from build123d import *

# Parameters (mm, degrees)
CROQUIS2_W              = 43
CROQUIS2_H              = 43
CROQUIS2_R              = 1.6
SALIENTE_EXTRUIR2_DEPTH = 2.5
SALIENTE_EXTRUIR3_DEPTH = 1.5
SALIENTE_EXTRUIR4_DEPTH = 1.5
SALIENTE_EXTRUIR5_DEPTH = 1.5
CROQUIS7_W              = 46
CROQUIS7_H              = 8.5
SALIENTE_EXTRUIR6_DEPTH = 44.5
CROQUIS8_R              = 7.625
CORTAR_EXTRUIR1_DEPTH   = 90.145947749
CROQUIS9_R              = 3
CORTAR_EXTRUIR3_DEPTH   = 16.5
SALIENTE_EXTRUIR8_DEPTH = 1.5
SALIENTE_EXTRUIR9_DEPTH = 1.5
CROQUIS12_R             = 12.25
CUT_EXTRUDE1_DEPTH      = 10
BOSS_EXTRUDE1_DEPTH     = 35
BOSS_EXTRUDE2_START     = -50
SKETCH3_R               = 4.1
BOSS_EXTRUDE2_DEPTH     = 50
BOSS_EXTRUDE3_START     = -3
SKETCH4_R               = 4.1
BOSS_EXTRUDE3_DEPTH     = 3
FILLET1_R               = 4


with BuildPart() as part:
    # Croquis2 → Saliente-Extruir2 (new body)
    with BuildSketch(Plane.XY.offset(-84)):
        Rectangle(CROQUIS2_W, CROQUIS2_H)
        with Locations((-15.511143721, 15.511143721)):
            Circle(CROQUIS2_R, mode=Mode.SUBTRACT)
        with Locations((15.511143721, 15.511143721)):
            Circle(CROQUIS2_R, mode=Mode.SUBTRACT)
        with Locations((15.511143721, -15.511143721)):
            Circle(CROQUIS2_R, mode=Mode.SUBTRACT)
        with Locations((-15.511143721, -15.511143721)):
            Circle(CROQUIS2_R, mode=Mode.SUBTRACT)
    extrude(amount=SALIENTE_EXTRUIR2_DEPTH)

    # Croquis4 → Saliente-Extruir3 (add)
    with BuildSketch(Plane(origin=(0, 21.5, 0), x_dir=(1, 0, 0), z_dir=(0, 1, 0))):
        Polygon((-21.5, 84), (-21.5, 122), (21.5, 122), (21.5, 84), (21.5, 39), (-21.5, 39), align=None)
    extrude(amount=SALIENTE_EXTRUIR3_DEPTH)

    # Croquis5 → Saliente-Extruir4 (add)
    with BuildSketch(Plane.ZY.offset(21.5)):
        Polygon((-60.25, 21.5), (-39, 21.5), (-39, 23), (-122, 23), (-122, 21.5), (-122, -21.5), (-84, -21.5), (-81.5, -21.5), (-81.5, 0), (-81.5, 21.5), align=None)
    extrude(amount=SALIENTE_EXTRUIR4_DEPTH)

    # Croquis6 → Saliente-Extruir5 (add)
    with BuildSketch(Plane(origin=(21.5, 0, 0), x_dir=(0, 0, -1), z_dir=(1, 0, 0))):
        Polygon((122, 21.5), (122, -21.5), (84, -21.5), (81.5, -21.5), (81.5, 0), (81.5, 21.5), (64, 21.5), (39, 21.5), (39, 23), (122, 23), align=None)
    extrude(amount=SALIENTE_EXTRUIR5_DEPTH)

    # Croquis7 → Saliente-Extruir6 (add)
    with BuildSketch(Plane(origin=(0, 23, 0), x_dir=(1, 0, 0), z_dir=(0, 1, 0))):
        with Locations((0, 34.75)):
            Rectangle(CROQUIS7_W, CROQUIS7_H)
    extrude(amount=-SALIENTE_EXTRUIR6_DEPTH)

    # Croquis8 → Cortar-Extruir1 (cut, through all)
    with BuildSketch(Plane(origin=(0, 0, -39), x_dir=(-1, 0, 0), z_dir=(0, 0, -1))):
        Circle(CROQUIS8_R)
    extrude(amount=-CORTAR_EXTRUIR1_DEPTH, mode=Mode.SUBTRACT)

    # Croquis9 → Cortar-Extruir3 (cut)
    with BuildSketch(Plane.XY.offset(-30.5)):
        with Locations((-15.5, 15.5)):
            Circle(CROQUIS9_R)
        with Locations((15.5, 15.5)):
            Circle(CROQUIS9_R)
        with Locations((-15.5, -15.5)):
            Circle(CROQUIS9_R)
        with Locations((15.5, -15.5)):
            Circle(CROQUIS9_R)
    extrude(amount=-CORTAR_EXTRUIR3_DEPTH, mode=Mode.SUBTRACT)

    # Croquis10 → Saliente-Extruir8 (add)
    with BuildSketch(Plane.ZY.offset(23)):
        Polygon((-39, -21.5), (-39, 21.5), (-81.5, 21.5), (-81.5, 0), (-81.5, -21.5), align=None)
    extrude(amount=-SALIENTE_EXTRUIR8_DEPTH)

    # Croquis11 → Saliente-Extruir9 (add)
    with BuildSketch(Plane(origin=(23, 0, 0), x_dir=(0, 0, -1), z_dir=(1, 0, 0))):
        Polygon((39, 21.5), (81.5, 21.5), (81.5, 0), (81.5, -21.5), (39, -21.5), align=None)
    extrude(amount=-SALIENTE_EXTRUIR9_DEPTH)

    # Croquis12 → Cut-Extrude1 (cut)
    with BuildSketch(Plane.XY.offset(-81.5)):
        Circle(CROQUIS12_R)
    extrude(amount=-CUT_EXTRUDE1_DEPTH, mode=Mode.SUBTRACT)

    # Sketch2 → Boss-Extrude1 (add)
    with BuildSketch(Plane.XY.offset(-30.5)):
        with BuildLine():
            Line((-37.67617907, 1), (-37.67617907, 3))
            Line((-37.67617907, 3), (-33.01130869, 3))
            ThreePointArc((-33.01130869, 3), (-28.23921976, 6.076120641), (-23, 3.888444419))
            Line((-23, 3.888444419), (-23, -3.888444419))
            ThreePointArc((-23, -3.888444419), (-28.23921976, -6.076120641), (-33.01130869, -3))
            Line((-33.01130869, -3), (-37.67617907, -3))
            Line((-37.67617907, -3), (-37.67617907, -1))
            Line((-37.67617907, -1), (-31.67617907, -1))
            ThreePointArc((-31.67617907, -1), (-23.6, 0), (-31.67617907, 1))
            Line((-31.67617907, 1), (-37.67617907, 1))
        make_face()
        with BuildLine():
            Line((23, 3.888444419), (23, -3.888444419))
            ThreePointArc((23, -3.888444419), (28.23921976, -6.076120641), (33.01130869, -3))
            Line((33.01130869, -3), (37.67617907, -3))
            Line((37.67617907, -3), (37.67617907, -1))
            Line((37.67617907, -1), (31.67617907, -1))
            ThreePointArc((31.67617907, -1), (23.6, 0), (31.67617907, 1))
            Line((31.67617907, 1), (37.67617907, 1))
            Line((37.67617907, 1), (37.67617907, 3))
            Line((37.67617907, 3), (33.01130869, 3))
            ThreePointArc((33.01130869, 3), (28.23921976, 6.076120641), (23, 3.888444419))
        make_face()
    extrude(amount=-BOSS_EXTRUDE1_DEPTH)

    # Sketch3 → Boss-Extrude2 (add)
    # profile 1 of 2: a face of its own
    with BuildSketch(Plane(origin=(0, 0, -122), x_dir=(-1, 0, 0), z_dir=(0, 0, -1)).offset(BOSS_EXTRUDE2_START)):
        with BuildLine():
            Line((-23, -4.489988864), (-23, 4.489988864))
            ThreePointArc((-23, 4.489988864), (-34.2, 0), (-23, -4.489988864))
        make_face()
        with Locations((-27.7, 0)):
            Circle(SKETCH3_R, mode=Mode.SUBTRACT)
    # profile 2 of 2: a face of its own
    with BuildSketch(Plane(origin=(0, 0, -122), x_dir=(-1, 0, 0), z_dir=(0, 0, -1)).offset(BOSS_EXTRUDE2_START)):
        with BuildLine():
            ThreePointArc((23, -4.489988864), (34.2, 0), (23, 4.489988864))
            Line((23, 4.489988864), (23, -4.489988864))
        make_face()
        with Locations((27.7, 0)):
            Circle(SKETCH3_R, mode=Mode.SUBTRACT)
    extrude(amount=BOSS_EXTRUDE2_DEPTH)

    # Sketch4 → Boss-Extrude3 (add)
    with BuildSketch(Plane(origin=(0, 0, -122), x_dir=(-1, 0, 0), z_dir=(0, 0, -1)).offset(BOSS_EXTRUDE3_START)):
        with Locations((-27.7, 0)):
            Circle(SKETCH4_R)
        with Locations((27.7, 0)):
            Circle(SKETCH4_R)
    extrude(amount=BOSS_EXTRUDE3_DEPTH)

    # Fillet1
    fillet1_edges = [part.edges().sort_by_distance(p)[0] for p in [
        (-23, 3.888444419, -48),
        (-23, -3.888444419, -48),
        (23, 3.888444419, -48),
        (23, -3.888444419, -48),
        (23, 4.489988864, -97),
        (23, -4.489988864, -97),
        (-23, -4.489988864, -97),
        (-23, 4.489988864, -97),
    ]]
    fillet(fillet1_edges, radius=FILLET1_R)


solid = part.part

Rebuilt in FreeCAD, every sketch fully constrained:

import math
import FreeCAD as App
import Part
import Sketcher

V = App.Vector


def edges_at(feature, points):
    """Names of the edges that pass closest to the given points."""
    edges = feature.Shape.Edges
    near = lambda p: min(range(len(edges)), key=lambda i: edges[i].distToShape(Part.Vertex(*p))[0])
    return sorted({f"Edge{near(p) + 1}" for p in points})


def add_polygon(sketch, points):
    """Adds a closed chain of lines whose ends are joined by coincident constraints."""
    first, n = sketch.GeometryCount, len(points)
    for a, b in zip(points, points[1:] + points[:1]):
        sketch.addGeometry(Part.LineSegment(App.Vector(*a, 0), App.Vector(*b, 0)), False)
    for i in range(n):
        sketch.addConstraint(Sketcher.Constraint("Coincident", first + i, 2, first + (i + 1) % n, 1))

doc = App.newDocument("Part")
body = doc.addObject("PartDesign::Body", "Body")

sketch1 = doc.addObject("Sketcher::SketchObject", "Sketch")
body.addObject(sketch1)
sketch1.AttachmentSupport = (doc.XY_Plane, [""])
sketch1.MapMode = "FlatFace"
sketch1.AttachmentOffset = App.Placement(V(0, 0, -84), App.Rotation())
add_polygon(sketch1, [(-21.5, 21.5), (-21.5, -21.5), (21.5, -21.5), (21.5, 21.5)])
sketch1.addGeometry(Part.Circle(V(-15.5, -15.5, 0), V(0, 0, 1), 1.6), False)
sketch1.addGeometry(Part.Circle(V(15.5, -15.5, 0), V(0, 0, 1), 1.6), False)
sketch1.addGeometry(Part.Circle(V(-15.5, 15.5, 0), V(0, 0, 1), 1.6), False)
sketch1.addGeometry(Part.Circle(V(15.5, 15.5, 0), V(0, 0, 1), 1.6), False)
sketch1.addConstraint([
    Sketcher.Constraint("Vertical", 0),
    Sketcher.Constraint("Horizontal", 1),
    Sketcher.Constraint("Vertical", 2),
    Sketcher.Constraint("Horizontal", 3),
    Sketcher.Constraint("Equal", 4, 5),
    Sketcher.Constraint("Equal", 5, 6),
    Sketcher.Constraint("Equal", 6, 7),
    Sketcher.Constraint("Symmetric", 5, 3, 6, 3, -1, 1),
    Sketcher.Constraint("Symmetric", 4, 3, 7, 3, -1, 1),
    Sketcher.Constraint("Symmetric", 0, 2, 2, 2, -1, 1),
    Sketcher.Constraint("Symmetric", 4, 3, 5, 3, -2),
    Sketcher.Constraint("Equal", 3, 0),
    Sketcher.Constraint("Diameter", 4, 3.2),
    Sketcher.Constraint("DistanceX", 1, 1, 1, 2, 43.0),
    Sketcher.Constraint("DistanceX", 4, 3, -1, 1, 15.511144),
    Sketcher.Constraint("DistanceY", 4, 3, -1, 1, 15.511144),
])
pad1 = doc.addObject("PartDesign::Pad", "Pad")
body.addObject(pad1)
pad1.Profile = sketch1
pad1.Length = 2.5

sketch2 = doc.addObject("Sketcher::SketchObject", "Sketch001")
body.addObject(sketch2)
sketch2.AttachmentSupport = (doc.XZ_Plane, [""])
sketch2.MapMode = "FlatFace"
sketch2.AttachmentOffset = App.Placement(V(0, 0, -21.5), App.Rotation())
add_polygon(sketch2, [(-22, -122), (-22, -39), (22, -39), (22, -122)])
sketch2.addConstraint([
    Sketcher.Constraint("Vertical", 0),
    Sketcher.Constraint("Horizontal", 1),
    Sketcher.Constraint("Vertical", 2),
    Sketcher.Constraint("Horizontal", 3),
    Sketcher.Constraint("DistanceX", 1, 1, 1, 2, 43.0),
    Sketcher.Constraint("DistanceY", 0, 1, 0, 2, 83.0),
    Sketcher.Constraint("DistanceY", 0, 2, -1, 1, 39.0),
    Sketcher.Constraint("DistanceX", 0, 2, -1, 1, 21.5),
])
pad2 = doc.addObject("PartDesign::Pad", "Pad001")
body.addObject(pad2)
pad2.Profile = sketch2
pad2.Length = 1.5
pad2.Reversed = True

sketch3 = doc.addObject("Sketcher::SketchObject", "Sketch002")
body.addObject(sketch3)
sketch3.AttachmentSupport = (doc.YZ_Plane, [""])
sketch3.MapMode = "FlatFace"
sketch3.AttachmentOffset = App.Placement(V(0, 0, -21.5), App.Rotation())
add_polygon(sketch3, [(21.5, -39), (23, -39), (23, -122), (-21.5, -122), (-21.5, -81.5), (21.5, -81.5)])
sketch3.addConstraint([
    Sketcher.Constraint("Horizontal", 0),
    Sketcher.Constraint("Vertical", 1),
    Sketcher.Constraint("Horizontal", 2),
    Sketcher.Constraint("Vertical", 3),
    Sketcher.Constraint("Horizontal", 4),
    Sketcher.Constraint("Vertical", 5),
    Sketcher.Constraint("DistanceX", 4, 1, 4, 2, 43.0),
    Sketcher.Constraint("DistanceY", 1, 2, 1, 1, 83.0),
    Sketcher.Constraint("DistanceX", 0, 1, 0, 2, 1.5),
    Sketcher.Constraint("DistanceY", 3, 1, 3, 2, 40.5),
    Sketcher.Constraint("DistanceX", -1, 1, 0, 2, 23.0),
    Sketcher.Constraint("DistanceY", 0, 2, -1, 1, 39.0),
])
pad3 = doc.addObject("PartDesign::Pad", "Pad002")
body.addObject(pad3)
pad3.Profile = sketch3
pad3.Length = 1.5
pad3.Reversed = True

sketch4 = doc.addObject("Sketcher::SketchObject", "Sketch003")
body.addObject(sketch4)
sketch4.AttachmentSupport = (doc.YZ_Plane, [""])
sketch4.MapMode = "FlatFace"
sketch4.AttachmentOffset = App.Placement(V(0, 0, 21.5), App.Rotation())
add_polygon(sketch4, [(-21.5, -122), (23, -122), (23, -39), (21.5, -39), (21.5, -81.5), (-21.5, -81.5)])
sketch4.addConstraint([
    Sketcher.Constraint("Horizontal", 0),
    Sketcher.Constraint("Vertical", 1),
    Sketcher.Constraint("Horizontal", 2),
    Sketcher.Constraint("Vertical", 3),
    Sketcher.Constraint("Horizontal", 4),
    Sketcher.Constraint("Vertical", 5),
    Sketcher.Constraint("DistanceX", 4, 2, 4, 1, 43.0),
    Sketcher.Constraint("DistanceY", 1, 1, 1, 2, 83.0),
    Sketcher.Constraint("DistanceX", 0, 1, 0, 2, 44.5),
    Sketcher.Constraint("DistanceY", 3, 2, 3, 1, 42.5),
    Sketcher.Constraint("DistanceX", -1, 1, 0, 2, 23.0),
    Sketcher.Constraint("DistanceY", 0, 2, -1, 1, 122.0),
])
pad4 = doc.addObject("PartDesign::Pad", "Pad003")
body.addObject(pad4)
pad4.Profile = sketch4
pad4.Length = 1.5

sketch5 = doc.addObject("Sketcher::SketchObject", "Sketch004")
body.addObject(sketch5)
sketch5.AttachmentSupport = (doc.XZ_Plane, [""])
sketch5.MapMode = "FlatFace"
sketch5.AttachmentOffset = App.Placement(V(0, 0, -23), App.Rotation())
add_polygon(sketch5, [(-23, -39), (-23, -30), (23, -30), (23, -39)])
sketch5.addConstraint([
    Sketcher.Constraint("Vertical", 0),
    Sketcher.Constraint("Horizontal", 1),
    Sketcher.Constraint("Vertical", 2),
    Sketcher.Constraint("Horizontal", 3),
    Sketcher.Constraint("DistanceX", 1, 1, 1, 2, 46.0),
    Sketcher.Constraint("DistanceY", 0, 1, 0, 2, 8.5),
    Sketcher.Constraint("DistanceX", 0, 2, -1, 1, 23.0),
    Sketcher.Constraint("DistanceY", 2, 2, -1, 1, 39.0),
])
pad5 = doc.addObject("PartDesign::Pad", "Pad004")
body.addObject(pad5)
pad5.Profile = sketch5
pad5.Length = 44.5

sketch6 = doc.addObject("Sketcher::SketchObject", "Sketch005")
body.addObject(sketch6)
sketch6.AttachmentSupport = (doc.XY_Plane, [""])
sketch6.MapMode = "FlatFace"
sketch6.AttachmentOffset = App.Placement(V(0, 0, -39), App.Rotation())
sketch6.addGeometry(Part.Circle(V(0, 0, 0), V(0, 0, 1), 8), False)
sketch6.addConstraint([
    Sketcher.Constraint("Coincident", 0, 3, -1, 1),
    Sketcher.Constraint("Diameter", 0, 15.25),
])
pocket1 = doc.addObject("PartDesign::Pocket", "Pocket")
body.addObject(pocket1)
pocket1.Profile = sketch6
pocket1.Type = "ThroughAll"
pocket1.Reversed = True

sketch7 = doc.addObject("Sketcher::SketchObject", "Sketch006")
body.addObject(sketch7)
sketch7.AttachmentSupport = (doc.XY_Plane, [""])
sketch7.MapMode = "FlatFace"
sketch7.AttachmentOffset = App.Placement(V(0, 0, -30.5), App.Rotation())
sketch7.addGeometry([
    Part.Circle(V(-15.5, 15.5, 0), V(0, 0, 1), 3),
    Part.Circle(V(15.5, 15.5, 0), V(0, 0, 1), 3),
    Part.Circle(V(-15.5, -15.5, 0), V(0, 0, 1), 3),
    Part.Circle(V(15.5, -15.5, 0), V(0, 0, 1), 3),
], False)
sketch7.addConstraint([
    Sketcher.Constraint("Equal", 0, 1),
    Sketcher.Constraint("Equal", 1, 2),
    Sketcher.Constraint("Equal", 2, 3),
    Sketcher.Constraint("Symmetric", 1, 3, 2, 3, -1, 1),
    Sketcher.Constraint("Symmetric", 0, 3, 3, 3, -1, 1),
    Sketcher.Constraint("Symmetric", 0, 3, 1, 3, -2),
    Sketcher.Constraint("Diameter", 0, 6.0),
    Sketcher.Constraint("DistanceX", 0, 3, 1, 3, 31.0),
    Sketcher.Constraint("DistanceY", 2, 3, 0, 3, 31.0),
])
pocket2 = doc.addObject("PartDesign::Pocket", "Pocket001")
body.addObject(pocket2)
pocket2.Profile = sketch7
pocket2.Length = 16.5

sketch8 = doc.addObject("Sketcher::SketchObject", "Sketch007")
body.addObject(sketch8)
sketch8.AttachmentSupport = (doc.YZ_Plane, [""])
sketch8.MapMode = "FlatFace"
sketch8.AttachmentOffset = App.Placement(V(0, 0, -23), App.Rotation())
add_polygon(sketch8, [(-22, -39), (22, -39), (22, -82), (-22, -82)])
sketch8.addConstraint([
    Sketcher.Constraint("Horizontal", 0),
    Sketcher.Constraint("Vertical", 1),
    Sketcher.Constraint("Horizontal", 2),
    Sketcher.Constraint("Vertical", 3),
    Sketcher.Constraint("DistanceX", 0, 1, 0, 2, 43.0),
    Sketcher.Constraint("DistanceY", 1, 2, 1, 1, 42.5),
    Sketcher.Constraint("DistanceY", 0, 2, -1, 1, 39.0),
    Sketcher.Constraint("DistanceX", -1, 1, 0, 2, 21.5),
])
pad6 = doc.addObject("PartDesign::Pad", "Pad005")
body.addObject(pad6)
pad6.Profile = sketch8
pad6.Length = 1.5

sketch9 = doc.addObject("Sketcher::SketchObject", "Sketch008")
body.addObject(sketch9)
sketch9.AttachmentSupport = (doc.YZ_Plane, [""])
sketch9.MapMode = "FlatFace"
sketch9.AttachmentOffset = App.Placement(V(0, 0, 23), App.Rotation())
add_polygon(sketch9, [(22, -82), (22, -39), (-22, -39), (-22, -82)])
sketch9.addConstraint([
    Sketcher.Constraint("Vertical", 0),
    Sketcher.Constraint("Horizontal", 1),
    Sketcher.Constraint("Vertical", 2),
    Sketcher.Constraint("Horizontal", 3),
    Sketcher.Constraint("DistanceX", 1, 2, 1, 1, 43.0),
    Sketcher.Constraint("DistanceY", 0, 1, 0, 2, 42.5),
    Sketcher.Constraint("DistanceY", 0, 2, -1, 1, 39.0),
    Sketcher.Constraint("DistanceX", -1, 1, 0, 2, 21.5),
])
pad7 = doc.addObject("PartDesign::Pad", "Pad006")
body.addObject(pad7)
pad7.Profile = sketch9
pad7.Length = 1.5
pad7.Reversed = True

sketch10 = doc.addObject("Sketcher::SketchObject", "Sketch009")
body.addObject(sketch10)
sketch10.AttachmentSupport = (doc.XY_Plane, [""])
sketch10.MapMode = "FlatFace"
sketch10.AttachmentOffset = App.Placement(V(0, 0, -81.5), App.Rotation())
sketch10.addGeometry(Part.Circle(V(0, 0, 0), V(0, 0, 1), 12), False)
sketch10.addConstraint([
    Sketcher.Constraint("Coincident", 0, 3, -1, 1),
    Sketcher.Constraint("Diameter", 0, 24.5),
])
pocket3 = doc.addObject("PartDesign::Pocket", "Pocket002")
body.addObject(pocket3)
pocket3.Profile = sketch10
pocket3.Length = 10

sketch11 = doc.addObject("Sketcher::SketchObject", "Sketch010")
body.addObject(sketch11)
sketch11.AttachmentSupport = (doc.XY_Plane, [""])
sketch11.MapMode = "FlatFace"
sketch11.AttachmentOffset = App.Placement(V(0, 0, -30.5), App.Rotation())
sketch11.addGeometry([
    Part.LineSegment(V(-37.7, 3, 0), V(-37.7, 1, 0)),
    Part.LineSegment(V(-37.7, 1, 0), V(-31.7, 1, 0)),
    Part.ArcOfCircle(Part.Circle(V(-27.7, 0, 0), V(0, 0, 1), 4.1), math.radians(-166), math.radians(166)),
    Part.LineSegment(V(-31.7, -1, 0), V(-37.7, -1, 0)),
    Part.LineSegment(V(-37.7, -1, 0), V(-37.7, -3, 0)),
    Part.LineSegment(V(-37.7, -3, 0), V(-33, -3, 0)),
    Part.ArcOfCircle(Part.Circle(V(-27.7, 0, 0), V(0, 0, 1), 6.1), math.radians(-151), math.radians(-40)),
    Part.LineSegment(V(-23, -3.9, 0), V(-23, 3.9, 0)),
    Part.ArcOfCircle(Part.Circle(V(-27.7, 0, 0), V(0, 0, 1), 6.1), math.radians(40), math.radians(151)),
    Part.LineSegment(V(-33, 3, 0), V(-37.7, 3, 0)),
    Part.LineSegment(V(23, 3.9, 0), V(23, -3.9, 0)),
    Part.ArcOfCircle(Part.Circle(V(27.7, 0, 0), V(0, 0, 1), 6.1), math.radians(-140), math.radians(-29)),
    Part.LineSegment(V(33, -3, 0), V(37.7, -3, 0)),
    Part.LineSegment(V(37.7, -3, 0), V(37.7, -1, 0)),
    Part.LineSegment(V(37.7, -1, 0), V(31.7, -1, 0)),
    Part.ArcOfCircle(Part.Circle(V(27.7, 0, 0), V(0, 0, 1), 4.1), math.radians(14), math.radians(346)),
    Part.LineSegment(V(31.7, 1, 0), V(37.7, 1, 0)),
    Part.LineSegment(V(37.7, 1, 0), V(37.7, 3, 0)),
    Part.LineSegment(V(37.7, 3, 0), V(33, 3, 0)),
    Part.ArcOfCircle(Part.Circle(V(27.7, 0, 0), V(0, 0, 1), 6.1), math.radians(29), math.radians(140)),
], False)
sketch11.addConstraint([
    Sketcher.Constraint("Coincident", 0, 2, 1, 1),
    Sketcher.Constraint("Coincident", 1, 2, 2, 2),
    Sketcher.Constraint("Coincident", 2, 1, 3, 1),
    Sketcher.Constraint("Coincident", 3, 2, 4, 1),
    Sketcher.Constraint("Coincident", 4, 2, 5, 1),
    Sketcher.Constraint("Coincident", 5, 2, 6, 1),
    Sketcher.Constraint("Coincident", 6, 2, 7, 1),
    Sketcher.Constraint("Coincident", 7, 2, 8, 1),
    Sketcher.Constraint("Coincident", 8, 2, 9, 1),
    Sketcher.Constraint("Coincident", 9, 2, 0, 1),
    Sketcher.Constraint("Coincident", 10, 2, 11, 1),
    Sketcher.Constraint("Coincident", 11, 2, 12, 1),
    Sketcher.Constraint("Coincident", 12, 2, 13, 1),
    Sketcher.Constraint("Coincident", 13, 2, 14, 1),
    Sketcher.Constraint("Coincident", 14, 2, 15, 2),
    Sketcher.Constraint("Coincident", 15, 1, 16, 1),
    Sketcher.Constraint("Coincident", 16, 2, 17, 1),
    Sketcher.Constraint("Coincident", 17, 2, 18, 1),
    Sketcher.Constraint("Coincident", 18, 2, 19, 1),
    Sketcher.Constraint("Coincident", 19, 2, 10, 1),
    Sketcher.Constraint("Vertical", 0),
    Sketcher.Constraint("Horizontal", 1),
    Sketcher.Constraint("Horizontal", 3),
    Sketcher.Constraint("Vertical", 4),
    Sketcher.Constraint("Horizontal", 5),
    Sketcher.Constraint("Vertical", 7),
    Sketcher.Constraint("Horizontal", 9),
    Sketcher.Constraint("Vertical", 10),
    Sketcher.Constraint("Horizontal", 12),
    Sketcher.Constraint("Vertical", 13),
    Sketcher.Constraint("Horizontal", 14),
    Sketcher.Constraint("Horizontal", 16),
    Sketcher.Constraint("Vertical", 17),
    Sketcher.Constraint("Horizontal", 18),
    Sketcher.Constraint("Coincident", 6, 3, 2, 3),
    Sketcher.Constraint("Coincident", 8, 3, 2, 3),
    Sketcher.Constraint("Coincident", 15, 3, 11, 3),
    Sketcher.Constraint("Coincident", 19, 3, 11, 3),
    Sketcher.Constraint("Equal", 6, 8),
    Sketcher.Constraint("Equal", 8, 11),
    Sketcher.Constraint("Equal", 2, 15),
    Sketcher.Constraint("Equal", 11, 19),
    Sketcher.Constraint("Symmetric", 2, 3, 11, 3, -1, 1),
    Sketcher.Constraint("Symmetric", 9, 2, 12, 2, -1, 1),
    Sketcher.Constraint("Symmetric", 3, 2, 16, 2, -1, 1),
    Sketcher.Constraint("Symmetric", 6, 2, 10, 2, -2),
    Sketcher.Constraint("Symmetric", 4, 2, 12, 2, -2),
    Sketcher.Constraint("Horizontal", 3, 2, 13, 2),
    Sketcher.Constraint("Horizontal", 1, 2, 15, 1),
    Sketcher.Constraint("Horizontal", 9, 2, 17, 2),
    Sketcher.Constraint("Radius", 2, 4.1),
    Sketcher.Constraint("Radius", 6, 6.1),
    Sketcher.Constraint("DistanceX", 1, 1, 1, 2, 6.0),
    Sketcher.Constraint("DistanceY", 0, 2, 0, 1, 2.0),
    Sketcher.Constraint("DistanceY", -1, 1, 0, 2, 1.0),
    Sketcher.Constraint("DistanceX", 6, 2, -1, 1, 23.0),
    Sketcher.Constraint("DistanceX", 2, 3, -1, 1, 27.7),
])
pad8 = doc.addObject("PartDesign::Pad", "Pad007")
body.addObject(pad8)
pad8.Profile = sketch11
pad8.Length = 35
pad8.Reversed = True

sketch12 = doc.addObject("Sketcher::SketchObject", "Sketch011")
body.addObject(sketch12)
sketch12.AttachmentSupport = (doc.XY_Plane, [""])
sketch12.MapMode = "FlatFace"
sketch12.AttachmentOffset = App.Placement(V(0, 0, -72), App.Rotation())
sketch12.addGeometry([
    Part.LineSegment(V(23, -4.5, 0), V(23, 4.5, 0)),
    Part.ArcOfCircle(Part.Circle(V(27.7, 0, 0), V(0, 0, 1), 6.5), math.radians(-136), math.radians(136)),
    Part.Circle(V(27.7, 0, 0), V(0, 0, 1), 4.1),
    Part.ArcOfCircle(Part.Circle(V(-27.7, 0, 0), V(0, 0, 1), 6.5), math.radians(44), math.radians(316)),
    Part.LineSegment(V(-23, 4.5, 0), V(-23, -4.5, 0)),
    Part.Circle(V(-27.7, 0, 0), V(0, 0, 1), 4.1),
], False)
sketch12.addConstraint([
    Sketcher.Constraint("Coincident", 0, 1, 1, 1),
    Sketcher.Constraint("Coincident", 1, 2, 0, 2),
    Sketcher.Constraint("Coincident", 3, 1, 4, 1),
    Sketcher.Constraint("Coincident", 4, 2, 3, 2),
    Sketcher.Constraint("Vertical", 0),
    Sketcher.Constraint("Vertical", 4),
    Sketcher.Constraint("Coincident", 2, 3, 1, 3),
    Sketcher.Constraint("Coincident", 5, 3, 3, 3),
    Sketcher.Constraint("Equal", 1, 3),
    Sketcher.Constraint("Equal", 2, 5),
    Sketcher.Constraint("Symmetric", 1, 3, 3, 3, -1, 1),
    Sketcher.Constraint("Symmetric", 1, 2, 3, 1, -2),
    Sketcher.Constraint("Diameter", 2, 8.2),
    Sketcher.Constraint("Radius", 1, 6.5),
    Sketcher.Constraint("DistanceX", -1, 1, 0, 1, 23.0),
    Sketcher.Constraint("DistanceX", -1, 1, 1, 3, 27.7),
])
pad9 = doc.addObject("PartDesign::Pad", "Pad008")
body.addObject(pad9)
pad9.Profile = sketch12
pad9.Length = 50
pad9.Reversed = True

sketch13 = doc.addObject("Sketcher::SketchObject", "Sketch012")
body.addObject(sketch13)
sketch13.AttachmentSupport = (doc.XY_Plane, [""])
sketch13.MapMode = "FlatFace"
sketch13.AttachmentOffset = App.Placement(V(0, 0, -119), App.Rotation())
sketch13.addGeometry([
    Part.Circle(V(27.7, 0, 0), V(0, 0, 1), 4.1),
    Part.Circle(V(-27.7, 0, 0), V(0, 0, 1), 4.1),
], False)
sketch13.addConstraint([
    Sketcher.Constraint("Equal", 0, 1),
    Sketcher.Constraint("Symmetric", 0, 3, 1, 3, -1, 1),
    Sketcher.Constraint("PointOnObject", 0, 3, -1),
    Sketcher.Constraint("Diameter", 0, 8.2),
    Sketcher.Constraint("DistanceX", -1, 1, 0, 3, 27.7),
])
pad10 = doc.addObject("PartDesign::Pad", "Pad009")
body.addObject(pad10)
pad10.Profile = sketch13
pad10.Length = 3
pad10.Reversed = True
doc.recompute()

fillet = doc.addObject("PartDesign::Fillet", "Fillet")
body.addObject(fillet)
fillet.Base = (pad10, edges_at(pad10, [
    (-23, 3.888, -48),
    (-23, -3.888, -48),
    (23, 3.888, -48),
    (23, -3.888, -48),
    (23, 4.49, -97),
    (23, -4.49, -97),
    (-23, -4.49, -97),
    (-23, 4.49, -97),
]))
fillet.Radius = 4

doc.recompute()
